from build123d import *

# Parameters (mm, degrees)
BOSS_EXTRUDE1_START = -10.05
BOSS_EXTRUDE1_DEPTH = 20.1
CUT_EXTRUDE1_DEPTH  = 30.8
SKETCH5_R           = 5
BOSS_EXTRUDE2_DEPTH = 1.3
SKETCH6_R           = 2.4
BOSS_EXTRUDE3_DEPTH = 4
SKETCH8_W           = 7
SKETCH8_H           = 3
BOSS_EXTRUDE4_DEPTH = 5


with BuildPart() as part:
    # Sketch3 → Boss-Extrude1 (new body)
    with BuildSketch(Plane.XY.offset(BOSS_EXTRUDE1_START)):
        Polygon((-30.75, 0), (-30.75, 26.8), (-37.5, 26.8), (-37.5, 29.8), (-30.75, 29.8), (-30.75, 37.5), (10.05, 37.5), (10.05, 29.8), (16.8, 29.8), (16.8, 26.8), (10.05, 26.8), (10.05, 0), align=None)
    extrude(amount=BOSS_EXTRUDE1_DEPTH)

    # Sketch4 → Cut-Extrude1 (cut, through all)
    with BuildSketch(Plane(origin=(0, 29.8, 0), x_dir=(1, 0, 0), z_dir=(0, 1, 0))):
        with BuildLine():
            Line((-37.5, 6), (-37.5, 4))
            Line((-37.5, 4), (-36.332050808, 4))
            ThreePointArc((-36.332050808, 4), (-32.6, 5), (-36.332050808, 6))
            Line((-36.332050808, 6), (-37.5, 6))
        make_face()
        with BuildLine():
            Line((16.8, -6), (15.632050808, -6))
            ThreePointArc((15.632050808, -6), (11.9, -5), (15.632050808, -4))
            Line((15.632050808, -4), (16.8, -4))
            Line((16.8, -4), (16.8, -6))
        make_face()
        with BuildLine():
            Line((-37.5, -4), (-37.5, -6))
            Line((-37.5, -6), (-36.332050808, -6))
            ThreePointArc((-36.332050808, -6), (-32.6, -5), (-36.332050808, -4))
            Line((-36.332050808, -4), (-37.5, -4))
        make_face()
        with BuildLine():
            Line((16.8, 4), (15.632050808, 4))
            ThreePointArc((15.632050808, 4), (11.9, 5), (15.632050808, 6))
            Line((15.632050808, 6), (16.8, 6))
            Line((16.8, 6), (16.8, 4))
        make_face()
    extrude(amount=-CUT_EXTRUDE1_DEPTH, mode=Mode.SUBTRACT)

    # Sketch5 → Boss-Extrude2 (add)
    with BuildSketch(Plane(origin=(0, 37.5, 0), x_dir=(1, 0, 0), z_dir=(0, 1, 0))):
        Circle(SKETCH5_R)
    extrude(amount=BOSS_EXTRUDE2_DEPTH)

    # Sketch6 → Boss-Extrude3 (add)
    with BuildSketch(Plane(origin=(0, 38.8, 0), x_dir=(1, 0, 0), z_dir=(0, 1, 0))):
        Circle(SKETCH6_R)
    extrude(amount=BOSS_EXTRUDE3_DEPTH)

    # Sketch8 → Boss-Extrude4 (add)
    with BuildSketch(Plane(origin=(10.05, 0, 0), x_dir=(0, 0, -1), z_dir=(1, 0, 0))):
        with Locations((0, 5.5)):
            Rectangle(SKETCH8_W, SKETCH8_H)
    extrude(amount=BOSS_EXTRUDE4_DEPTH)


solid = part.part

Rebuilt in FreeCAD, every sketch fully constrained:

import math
import FreeCAD as App
import Part
import Sketcher

V = App.Vector

doc = App.newDocument("Part")
params = doc.addObject("Spreadsheet::Sheet", "Params")
for row, (alias, value) in enumerate([
    ("sketch1_height", "3 mm"),
    ("sketch1_width", "40.8 mm"),
    ("sketch1_height2", "26.8 mm"),
    ("sketch1_height3", "7.7 mm"),
    ("sketch1_width2", "6.75 mm"),
    ("pad1_length", "20.1 mm"),
    ("sketch2_radius", "2 mm"),
    ("sketch2_height", "2 mm"),
    ("sketch3_diameter", "10 mm"),
    ("pad2_length", "1.3 mm"),
    ("sketch4_diameter", "4.8 mm"),
    ("pad3_length", "4 mm"),
    ("sketch5_width", "3 mm"),
    ("sketch5_height", "7 mm"),
    ("pad4_length", "5 mm"),
], start=1):
    params.set(f"A{row}", alias)
    params.set(f"B{row}", "=" + value)
    params.setAlias(f"B{row}", alias)

body = doc.addObject("PartDesign::Body", "Body")

sketch1 = body.newObject("Sketcher::SketchObject", "Sketch")
sketch1.AttachmentSupport = (doc.getObject("XY_Plane"), [""])
sketch1.MapMode = "FlatFace"
sketch1.AttachmentOffset = App.Placement(V(0, 0, -10.05), App.Rotation())
sketch1.addGeometry([
    Part.LineSegment(V(-30.8, 26.8, 0), V(-30.8, 0, 0)),
    Part.LineSegment(V(-30.8, 0, 0), V(10.1, 0, 0)),
    Part.LineSegment(V(10.1, 0, 0), V(10.1, 26.8, 0)),
    Part.LineSegment(V(10.1, 26.8, 0), V(16.8, 26.8, 0)),
    Part.LineSegment(V(16.8, 26.8, 0), V(16.8, 29.8, 0)),
    Part.LineSegment(V(16.8, 29.8, 0), V(10.1, 29.8, 0)),
    Part.LineSegment(V(10.1, 29.8, 0), V(10.1, 37.5, 0)),
    Part.LineSegment(V(10.1, 37.5, 0), V(-30.8, 37.5, 0)),
    Part.LineSegment(V(-30.8, 37.5, 0), V(-30.8, 29.8, 0)),
    Part.LineSegment(V(-30.8, 29.8, 0), V(-37.5, 29.8, 0)),
    Part.LineSegment(V(-37.5, 29.8, 0), V(-37.5, 26.8, 0)),
    Part.LineSegment(V(-37.5, 26.8, 0), V(-30.8, 26.8, 0)),
], False)
sketch1.addConstraint([
    Sketcher.Constraint("Coincident", 0, 2, 1, 1),
    Sketcher.Constraint("Coincident", 1, 2, 2, 1),
    Sketcher.Constraint("Coincident", 2, 2, 3, 1),
    Sketcher.Constraint("Coincident", 3, 2, 4, 1),
    Sketcher.Constraint("Coincident", 4, 2, 5, 1),
    Sketcher.Constraint("Coincident", 5, 2, 6, 1),
    Sketcher.Constraint("Coincident", 6, 2, 7, 1),
    Sketcher.Constraint("Coincident", 7, 2, 8, 1),
    Sketcher.Constraint("Coincident", 8, 2, 9, 1),
    Sketcher.Constraint("Coincident", 9, 2, 10, 1),
    Sketcher.Constraint("Coincident", 10, 2, 11, 1),
    Sketcher.Constraint("Coincident", 11, 2, 0, 1),
    Sketcher.Constraint("Vertical", 0),
    Sketcher.Constraint("Horizontal", 1),
    Sketcher.Constraint("Vertical", 2),
    Sketcher.Constraint("Horizontal", 3),
    Sketcher.Constraint("Vertical", 4),
    Sketcher.Constraint("Horizontal", 5),
    Sketcher.Constraint("Vertical", 6),
    Sketcher.Constraint("Horizontal", 7),
    Sketcher.Constraint("Vertical", 8),
    Sketcher.Constraint("Horizontal", 9),
    Sketcher.Constraint("Vertical", 10),
    Sketcher.Constraint("Horizontal", 11),
    Sketcher.Constraint("PointOnObject", 0, 2, -1),
    Sketcher.Constraint("Horizontal", 5, 2, 8, 2),
    Sketcher.Constraint("Horizontal", 3, 2, 10, 2),
    Sketcher.Constraint("Vertical", 2, 2, 5, 2),
    Sketcher.Constraint("Vertical", 0, 2, 7, 2),
    Sketcher.Constraint("Equal", 5, 9),
    Sketcher.Constraint("DistanceY", 4, 1, 4, 2, 3.0),
    Sketcher.Constraint("DistanceX", 1, 1, 1, 2, 40.8),
    Sketcher.Constraint("DistanceY", 0, 2, 0, 1, 26.8),
    Sketcher.Constraint("DistanceY", 6, 1, 6, 2, 7.7),
    Sketcher.Constraint("DistanceX", 3, 1, 3, 2, 6.75),
    Sketcher.Constraint("DistanceX", -1, 1, 3, 2, 16.8),
])
sketch1.setExpression("Constraints[30]", "Params.sketch1_height")
sketch1.setExpression("Constraints[31]", "Params.sketch1_width")
sketch1.setExpression("Constraints[32]", "Params.sketch1_height2")
sketch1.setExpression("Constraints[33]", "Params.sketch1_height3")
sketch1.setExpression("Constraints[34]", "Params.sketch1_width2")
pad1 = body.newObject("PartDesign::Pad", "Pad")
pad1.Profile = sketch1
pad1.setExpression("Length", "Params.pad1_length")

sketch2 = body.newObject("Sketcher::SketchObject", "Sketch001")
sketch2.AttachmentSupport = (doc.getObject("XZ_Plane"), [""])
sketch2.MapMode = "FlatFace"
sketch2.AttachmentOffset = App.Placement(V(0, 0, -29.8), App.Rotation())
sketch2.addGeometry([
    Part.LineSegment(V(-37.5, -6, 0), V(-37.5, -4, 0)),
    Part.LineSegment(V(-37.5, -4, 0), V(-36.3, -4, 0)),
    Part.ArcOfCircle(Part.Circle(V(-34.6, -5, 0), V(0, 0, 1), 2), math.radians(-150), math.radians(150)),
    Part.LineSegment(V(-36.3, -6, 0), V(-37.5, -6, 0)),
    Part.LineSegment(V(15.6, 6, 0), V(16.8, 6, 0)),
    Part.LineSegment(V(16.8, 6, 0), V(16.8, 4, 0)),
    Part.LineSegment(V(16.8, 4, 0), V(15.6, 4, 0)),
    Part.ArcOfCircle(Part.Circle(V(13.9, 5, 0), V(0, 0, 1), 2), math.radians(30), math.radians(330)),
    Part.LineSegment(V(-37.5, 4, 0), V(-37.5, 6, 0)),
    Part.LineSegment(V(-37.5, 6, 0), V(-36.3, 6, 0)),
    Part.ArcOfCircle(Part.Circle(V(-34.6, 5, 0), V(0, 0, 1), 2), math.radians(-150), math.radians(150)),
    Part.LineSegment(V(-36.3, 4, 0), V(-37.5, 4, 0)),
    Part.LineSegment(V(15.6, -4, 0), V(16.8, -4, 0)),
    Part.LineSegment(V(16.8, -4, 0), V(16.8, -6, 0)),
    Part.LineSegment(V(16.8, -6, 0), V(15.6, -6, 0)),
    Part.ArcOfCircle(Part.Circle(V(13.9, -5, 0), V(0, 0, 1), 2), math.radians(30), math.radians(330)),
], False)
sketch2.addConstraint([
    Sketcher.Constraint("Coincident", 0, 2, 1, 1),
    Sketcher.Constraint("Coincident", 1, 2, 2, 2),
    Sketcher.Constraint("Coincident", 2, 1, 3, 1),
    Sketcher.Constraint("Coincident", 3, 2, 0, 1),
    Sketcher.Constraint("Coincident", 4, 2, 5, 1),
    Sketcher.Constraint("Coincident", 5, 2, 6, 1),
    Sketcher.Constraint("Coincident", 6, 2, 7, 2),
    Sketcher.Constraint("Coincident", 7, 1, 4, 1),
    Sketcher.Constraint("Coincident", 8, 2, 9, 1),
    Sketcher.Constraint("Coincident", 9, 2, 10, 2),
    Sketcher.Constraint("Coincident", 10, 1, 11, 1),
    Sketcher.Constraint("Coincident", 11, 2, 8, 1),
    Sketcher.Constraint("Coincident", 12, 2, 13, 1),
    Sketcher.Constraint("Coincident", 13, 2, 14, 1),
    Sketcher.Constraint("Coincident", 14, 2, 15, 2),
    Sketcher.Constraint("Coincident", 15, 1, 12, 1),
    Sketcher.Constraint("Vertical", 0),
    Sketcher.Constraint("Horizontal", 1),
    Sketcher.Constraint("Horizontal", 3),
    Sketcher.Constraint("Horizontal", 4),
    Sketcher.Constraint("Vertical", 5),
    Sketcher.Constraint("Horizontal", 6),
    Sketcher.Constraint("Vertical", 8),
    Sketcher.Constraint("Horizontal", 9),
    Sketcher.Constraint("Horizontal", 11),
    Sketcher.Constraint("Horizontal", 12),
    Sketcher.Constraint("Vertical", 13),
    Sketcher.Constraint("Horizontal", 14),
    Sketcher.Constraint("Equal", 2, 7),
    Sketcher.Constraint("Equal", 7, 10),
    Sketcher.Constraint("Equal", 10, 15),
    Sketcher.Constraint("Symmetric", 2, 3, 10, 3, -1),
    Sketcher.Constraint("Symmetric", 7, 3, 15, 3, -1),
    Sketcher.Constraint("Symmetric", 3, 2, 8, 2, -1),
    Sketcher.Constraint("Symmetric", 5, 2, 12, 2, -1),
    Sketcher.Constraint("Horizontal", 7, 3, 10, 3),
    Sketcher.Constraint("Horizontal", 7, 1, 8, 2),
    Sketcher.Constraint("Horizontal", 6, 2, 10, 1),
    Sketcher.Constraint("Horizontal", 1, 2, 12, 2),
    Sketcher.Constraint("Horizontal", 3, 2, 13, 2),
    Sketcher.Constraint("Vertical", 1, 2, 2, 1),
    Sketcher.Constraint("Equal", 3, 4),
    Sketcher.Constraint("Radius", 2, 2.0),
    Sketcher.Constraint("DistanceY", 0, 1, 0, 2, 2.0),
    Sketcher.Constraint("DistanceY", 2, 3, -1, 1, 5.0),
    Sketcher.Constraint("DistanceX", 2, 3, -1, 1, 34.6),
    Sketcher.Constraint("DistanceX", -1, 1, 7, 3, 13.9),
    Sketcher.Constraint("DistanceX", 0, 2, -1, 1, 37.5),
])
sketch2.setExpression("Constraints[42]", "Params.sketch2_radius")
sketch2.setExpression("Constraints[43]", "Params.sketch2_height")
pocket1 = body.newObject("PartDesign::Pocket", "Pocket")
pocket1.Profile = sketch2
pocket1.Type = "ThroughAll"
pocket1.Reversed = True

sketch3 = body.newObject("Sketcher::SketchObject", "Sketch002")
sketch3.AttachmentSupport = (doc.getObject("XZ_Plane"), [""])
sketch3.MapMode = "FlatFace"
sketch3.AttachmentOffset = App.Placement(V(0, 0, -37.5), App.Rotation())
sketch3.addGeometry(Part.Circle(V(0, 0, 0), V(0, 0, 1), 5), False)
sketch3.addConstraint([
    Sketcher.Constraint("Coincident", 0, 3, -1, 1),
    Sketcher.Constraint("Diameter", 0, 10.0),
])
sketch3.setExpression("Constraints[1]", "Params.sketch3_diameter")
pad2 = body.newObject("PartDesign::Pad", "Pad001")
pad2.Profile = sketch3
pad2.setExpression("Length", "Params.pad2_length")
pad2.Reversed = True

sketch4 = body.newObject("Sketcher::SketchObject", "Sketch003")
sketch4.AttachmentSupport = (doc.getObject("XZ_Plane"), [""])
sketch4.MapMode = "FlatFace"
sketch4.AttachmentOffset = App.Placement(V(0, 0, -38.8), App.Rotation())
sketch4.addGeometry(Part.Circle(V(0, 0, 0), V(0, 0, 1), 2.4), False)
sketch4.addConstraint([
    Sketcher.Constraint("Coincident", 0, 3, -1, 1),
    Sketcher.Constraint("Diameter", 0, 4.8),
])
sketch4.setExpression("Constraints[1]", "Params.sketch4_diameter")
pad3 = body.newObject("PartDesign::Pad", "Pad002")
pad3.Profile = sketch4
pad3.setExpression("Length", "Params.pad3_length")
pad3.Reversed = True

sketch5 = body.newObject("Sketcher::SketchObject", "Sketch004")
sketch5.AttachmentSupport = (doc.getObject("YZ_Plane"), [""])
sketch5.MapMode = "FlatFace"
sketch5.AttachmentOffset = App.Placement(V(0, 0, 10.05), App.Rotation())
sketch5.addGeometry([
    Part.LineSegment(V(7, 3.5, 0), V(4, 3.5, 0)),
    Part.LineSegment(V(4, 3.5, 0), V(4, -3.5, 0)),
    Part.LineSegment(V(4, -3.5, 0), V(7, -3.5, 0)),
    Part.LineSegment(V(7, -3.5, 0), V(7, 3.5, 0)),
], False)
sketch5.addConstraint([
    Sketcher.Constraint("Coincident", 0, 2, 1, 1),
    Sketcher.Constraint("Coincident", 1, 2, 2, 1),
    Sketcher.Constraint("Coincident", 2, 2, 3, 1),
    Sketcher.Constraint("Coincident", 3, 2, 0, 1),
    Sketcher.Constraint("Horizontal", 0),
    Sketcher.Constraint("Vertical", 1),
    Sketcher.Constraint("Horizontal", 2),
    Sketcher.Constraint("Vertical", 3),
    Sketcher.Constraint("DistanceX", 0, 2, 0, 1, 3.0),
    Sketcher.Constraint("DistanceY", 1, 2, 1, 1, 7.0),
    Sketcher.Constraint("DistanceX", -1, 1, 0, 2, 4.0),
    Sketcher.Constraint("DistanceY", -1, 1, 0, 2, 3.5),
])
sketch5.setExpression("Constraints[8]", "Params.sketch5_width")
sketch5.setExpression("Constraints[9]", "Params.sketch5_height")
pad4 = body.newObject("PartDesign::Pad", "Pad003")
pad4.Profile = sketch5
pad4.setExpression("Length", "Params.pad4_length")

doc.recompute()
